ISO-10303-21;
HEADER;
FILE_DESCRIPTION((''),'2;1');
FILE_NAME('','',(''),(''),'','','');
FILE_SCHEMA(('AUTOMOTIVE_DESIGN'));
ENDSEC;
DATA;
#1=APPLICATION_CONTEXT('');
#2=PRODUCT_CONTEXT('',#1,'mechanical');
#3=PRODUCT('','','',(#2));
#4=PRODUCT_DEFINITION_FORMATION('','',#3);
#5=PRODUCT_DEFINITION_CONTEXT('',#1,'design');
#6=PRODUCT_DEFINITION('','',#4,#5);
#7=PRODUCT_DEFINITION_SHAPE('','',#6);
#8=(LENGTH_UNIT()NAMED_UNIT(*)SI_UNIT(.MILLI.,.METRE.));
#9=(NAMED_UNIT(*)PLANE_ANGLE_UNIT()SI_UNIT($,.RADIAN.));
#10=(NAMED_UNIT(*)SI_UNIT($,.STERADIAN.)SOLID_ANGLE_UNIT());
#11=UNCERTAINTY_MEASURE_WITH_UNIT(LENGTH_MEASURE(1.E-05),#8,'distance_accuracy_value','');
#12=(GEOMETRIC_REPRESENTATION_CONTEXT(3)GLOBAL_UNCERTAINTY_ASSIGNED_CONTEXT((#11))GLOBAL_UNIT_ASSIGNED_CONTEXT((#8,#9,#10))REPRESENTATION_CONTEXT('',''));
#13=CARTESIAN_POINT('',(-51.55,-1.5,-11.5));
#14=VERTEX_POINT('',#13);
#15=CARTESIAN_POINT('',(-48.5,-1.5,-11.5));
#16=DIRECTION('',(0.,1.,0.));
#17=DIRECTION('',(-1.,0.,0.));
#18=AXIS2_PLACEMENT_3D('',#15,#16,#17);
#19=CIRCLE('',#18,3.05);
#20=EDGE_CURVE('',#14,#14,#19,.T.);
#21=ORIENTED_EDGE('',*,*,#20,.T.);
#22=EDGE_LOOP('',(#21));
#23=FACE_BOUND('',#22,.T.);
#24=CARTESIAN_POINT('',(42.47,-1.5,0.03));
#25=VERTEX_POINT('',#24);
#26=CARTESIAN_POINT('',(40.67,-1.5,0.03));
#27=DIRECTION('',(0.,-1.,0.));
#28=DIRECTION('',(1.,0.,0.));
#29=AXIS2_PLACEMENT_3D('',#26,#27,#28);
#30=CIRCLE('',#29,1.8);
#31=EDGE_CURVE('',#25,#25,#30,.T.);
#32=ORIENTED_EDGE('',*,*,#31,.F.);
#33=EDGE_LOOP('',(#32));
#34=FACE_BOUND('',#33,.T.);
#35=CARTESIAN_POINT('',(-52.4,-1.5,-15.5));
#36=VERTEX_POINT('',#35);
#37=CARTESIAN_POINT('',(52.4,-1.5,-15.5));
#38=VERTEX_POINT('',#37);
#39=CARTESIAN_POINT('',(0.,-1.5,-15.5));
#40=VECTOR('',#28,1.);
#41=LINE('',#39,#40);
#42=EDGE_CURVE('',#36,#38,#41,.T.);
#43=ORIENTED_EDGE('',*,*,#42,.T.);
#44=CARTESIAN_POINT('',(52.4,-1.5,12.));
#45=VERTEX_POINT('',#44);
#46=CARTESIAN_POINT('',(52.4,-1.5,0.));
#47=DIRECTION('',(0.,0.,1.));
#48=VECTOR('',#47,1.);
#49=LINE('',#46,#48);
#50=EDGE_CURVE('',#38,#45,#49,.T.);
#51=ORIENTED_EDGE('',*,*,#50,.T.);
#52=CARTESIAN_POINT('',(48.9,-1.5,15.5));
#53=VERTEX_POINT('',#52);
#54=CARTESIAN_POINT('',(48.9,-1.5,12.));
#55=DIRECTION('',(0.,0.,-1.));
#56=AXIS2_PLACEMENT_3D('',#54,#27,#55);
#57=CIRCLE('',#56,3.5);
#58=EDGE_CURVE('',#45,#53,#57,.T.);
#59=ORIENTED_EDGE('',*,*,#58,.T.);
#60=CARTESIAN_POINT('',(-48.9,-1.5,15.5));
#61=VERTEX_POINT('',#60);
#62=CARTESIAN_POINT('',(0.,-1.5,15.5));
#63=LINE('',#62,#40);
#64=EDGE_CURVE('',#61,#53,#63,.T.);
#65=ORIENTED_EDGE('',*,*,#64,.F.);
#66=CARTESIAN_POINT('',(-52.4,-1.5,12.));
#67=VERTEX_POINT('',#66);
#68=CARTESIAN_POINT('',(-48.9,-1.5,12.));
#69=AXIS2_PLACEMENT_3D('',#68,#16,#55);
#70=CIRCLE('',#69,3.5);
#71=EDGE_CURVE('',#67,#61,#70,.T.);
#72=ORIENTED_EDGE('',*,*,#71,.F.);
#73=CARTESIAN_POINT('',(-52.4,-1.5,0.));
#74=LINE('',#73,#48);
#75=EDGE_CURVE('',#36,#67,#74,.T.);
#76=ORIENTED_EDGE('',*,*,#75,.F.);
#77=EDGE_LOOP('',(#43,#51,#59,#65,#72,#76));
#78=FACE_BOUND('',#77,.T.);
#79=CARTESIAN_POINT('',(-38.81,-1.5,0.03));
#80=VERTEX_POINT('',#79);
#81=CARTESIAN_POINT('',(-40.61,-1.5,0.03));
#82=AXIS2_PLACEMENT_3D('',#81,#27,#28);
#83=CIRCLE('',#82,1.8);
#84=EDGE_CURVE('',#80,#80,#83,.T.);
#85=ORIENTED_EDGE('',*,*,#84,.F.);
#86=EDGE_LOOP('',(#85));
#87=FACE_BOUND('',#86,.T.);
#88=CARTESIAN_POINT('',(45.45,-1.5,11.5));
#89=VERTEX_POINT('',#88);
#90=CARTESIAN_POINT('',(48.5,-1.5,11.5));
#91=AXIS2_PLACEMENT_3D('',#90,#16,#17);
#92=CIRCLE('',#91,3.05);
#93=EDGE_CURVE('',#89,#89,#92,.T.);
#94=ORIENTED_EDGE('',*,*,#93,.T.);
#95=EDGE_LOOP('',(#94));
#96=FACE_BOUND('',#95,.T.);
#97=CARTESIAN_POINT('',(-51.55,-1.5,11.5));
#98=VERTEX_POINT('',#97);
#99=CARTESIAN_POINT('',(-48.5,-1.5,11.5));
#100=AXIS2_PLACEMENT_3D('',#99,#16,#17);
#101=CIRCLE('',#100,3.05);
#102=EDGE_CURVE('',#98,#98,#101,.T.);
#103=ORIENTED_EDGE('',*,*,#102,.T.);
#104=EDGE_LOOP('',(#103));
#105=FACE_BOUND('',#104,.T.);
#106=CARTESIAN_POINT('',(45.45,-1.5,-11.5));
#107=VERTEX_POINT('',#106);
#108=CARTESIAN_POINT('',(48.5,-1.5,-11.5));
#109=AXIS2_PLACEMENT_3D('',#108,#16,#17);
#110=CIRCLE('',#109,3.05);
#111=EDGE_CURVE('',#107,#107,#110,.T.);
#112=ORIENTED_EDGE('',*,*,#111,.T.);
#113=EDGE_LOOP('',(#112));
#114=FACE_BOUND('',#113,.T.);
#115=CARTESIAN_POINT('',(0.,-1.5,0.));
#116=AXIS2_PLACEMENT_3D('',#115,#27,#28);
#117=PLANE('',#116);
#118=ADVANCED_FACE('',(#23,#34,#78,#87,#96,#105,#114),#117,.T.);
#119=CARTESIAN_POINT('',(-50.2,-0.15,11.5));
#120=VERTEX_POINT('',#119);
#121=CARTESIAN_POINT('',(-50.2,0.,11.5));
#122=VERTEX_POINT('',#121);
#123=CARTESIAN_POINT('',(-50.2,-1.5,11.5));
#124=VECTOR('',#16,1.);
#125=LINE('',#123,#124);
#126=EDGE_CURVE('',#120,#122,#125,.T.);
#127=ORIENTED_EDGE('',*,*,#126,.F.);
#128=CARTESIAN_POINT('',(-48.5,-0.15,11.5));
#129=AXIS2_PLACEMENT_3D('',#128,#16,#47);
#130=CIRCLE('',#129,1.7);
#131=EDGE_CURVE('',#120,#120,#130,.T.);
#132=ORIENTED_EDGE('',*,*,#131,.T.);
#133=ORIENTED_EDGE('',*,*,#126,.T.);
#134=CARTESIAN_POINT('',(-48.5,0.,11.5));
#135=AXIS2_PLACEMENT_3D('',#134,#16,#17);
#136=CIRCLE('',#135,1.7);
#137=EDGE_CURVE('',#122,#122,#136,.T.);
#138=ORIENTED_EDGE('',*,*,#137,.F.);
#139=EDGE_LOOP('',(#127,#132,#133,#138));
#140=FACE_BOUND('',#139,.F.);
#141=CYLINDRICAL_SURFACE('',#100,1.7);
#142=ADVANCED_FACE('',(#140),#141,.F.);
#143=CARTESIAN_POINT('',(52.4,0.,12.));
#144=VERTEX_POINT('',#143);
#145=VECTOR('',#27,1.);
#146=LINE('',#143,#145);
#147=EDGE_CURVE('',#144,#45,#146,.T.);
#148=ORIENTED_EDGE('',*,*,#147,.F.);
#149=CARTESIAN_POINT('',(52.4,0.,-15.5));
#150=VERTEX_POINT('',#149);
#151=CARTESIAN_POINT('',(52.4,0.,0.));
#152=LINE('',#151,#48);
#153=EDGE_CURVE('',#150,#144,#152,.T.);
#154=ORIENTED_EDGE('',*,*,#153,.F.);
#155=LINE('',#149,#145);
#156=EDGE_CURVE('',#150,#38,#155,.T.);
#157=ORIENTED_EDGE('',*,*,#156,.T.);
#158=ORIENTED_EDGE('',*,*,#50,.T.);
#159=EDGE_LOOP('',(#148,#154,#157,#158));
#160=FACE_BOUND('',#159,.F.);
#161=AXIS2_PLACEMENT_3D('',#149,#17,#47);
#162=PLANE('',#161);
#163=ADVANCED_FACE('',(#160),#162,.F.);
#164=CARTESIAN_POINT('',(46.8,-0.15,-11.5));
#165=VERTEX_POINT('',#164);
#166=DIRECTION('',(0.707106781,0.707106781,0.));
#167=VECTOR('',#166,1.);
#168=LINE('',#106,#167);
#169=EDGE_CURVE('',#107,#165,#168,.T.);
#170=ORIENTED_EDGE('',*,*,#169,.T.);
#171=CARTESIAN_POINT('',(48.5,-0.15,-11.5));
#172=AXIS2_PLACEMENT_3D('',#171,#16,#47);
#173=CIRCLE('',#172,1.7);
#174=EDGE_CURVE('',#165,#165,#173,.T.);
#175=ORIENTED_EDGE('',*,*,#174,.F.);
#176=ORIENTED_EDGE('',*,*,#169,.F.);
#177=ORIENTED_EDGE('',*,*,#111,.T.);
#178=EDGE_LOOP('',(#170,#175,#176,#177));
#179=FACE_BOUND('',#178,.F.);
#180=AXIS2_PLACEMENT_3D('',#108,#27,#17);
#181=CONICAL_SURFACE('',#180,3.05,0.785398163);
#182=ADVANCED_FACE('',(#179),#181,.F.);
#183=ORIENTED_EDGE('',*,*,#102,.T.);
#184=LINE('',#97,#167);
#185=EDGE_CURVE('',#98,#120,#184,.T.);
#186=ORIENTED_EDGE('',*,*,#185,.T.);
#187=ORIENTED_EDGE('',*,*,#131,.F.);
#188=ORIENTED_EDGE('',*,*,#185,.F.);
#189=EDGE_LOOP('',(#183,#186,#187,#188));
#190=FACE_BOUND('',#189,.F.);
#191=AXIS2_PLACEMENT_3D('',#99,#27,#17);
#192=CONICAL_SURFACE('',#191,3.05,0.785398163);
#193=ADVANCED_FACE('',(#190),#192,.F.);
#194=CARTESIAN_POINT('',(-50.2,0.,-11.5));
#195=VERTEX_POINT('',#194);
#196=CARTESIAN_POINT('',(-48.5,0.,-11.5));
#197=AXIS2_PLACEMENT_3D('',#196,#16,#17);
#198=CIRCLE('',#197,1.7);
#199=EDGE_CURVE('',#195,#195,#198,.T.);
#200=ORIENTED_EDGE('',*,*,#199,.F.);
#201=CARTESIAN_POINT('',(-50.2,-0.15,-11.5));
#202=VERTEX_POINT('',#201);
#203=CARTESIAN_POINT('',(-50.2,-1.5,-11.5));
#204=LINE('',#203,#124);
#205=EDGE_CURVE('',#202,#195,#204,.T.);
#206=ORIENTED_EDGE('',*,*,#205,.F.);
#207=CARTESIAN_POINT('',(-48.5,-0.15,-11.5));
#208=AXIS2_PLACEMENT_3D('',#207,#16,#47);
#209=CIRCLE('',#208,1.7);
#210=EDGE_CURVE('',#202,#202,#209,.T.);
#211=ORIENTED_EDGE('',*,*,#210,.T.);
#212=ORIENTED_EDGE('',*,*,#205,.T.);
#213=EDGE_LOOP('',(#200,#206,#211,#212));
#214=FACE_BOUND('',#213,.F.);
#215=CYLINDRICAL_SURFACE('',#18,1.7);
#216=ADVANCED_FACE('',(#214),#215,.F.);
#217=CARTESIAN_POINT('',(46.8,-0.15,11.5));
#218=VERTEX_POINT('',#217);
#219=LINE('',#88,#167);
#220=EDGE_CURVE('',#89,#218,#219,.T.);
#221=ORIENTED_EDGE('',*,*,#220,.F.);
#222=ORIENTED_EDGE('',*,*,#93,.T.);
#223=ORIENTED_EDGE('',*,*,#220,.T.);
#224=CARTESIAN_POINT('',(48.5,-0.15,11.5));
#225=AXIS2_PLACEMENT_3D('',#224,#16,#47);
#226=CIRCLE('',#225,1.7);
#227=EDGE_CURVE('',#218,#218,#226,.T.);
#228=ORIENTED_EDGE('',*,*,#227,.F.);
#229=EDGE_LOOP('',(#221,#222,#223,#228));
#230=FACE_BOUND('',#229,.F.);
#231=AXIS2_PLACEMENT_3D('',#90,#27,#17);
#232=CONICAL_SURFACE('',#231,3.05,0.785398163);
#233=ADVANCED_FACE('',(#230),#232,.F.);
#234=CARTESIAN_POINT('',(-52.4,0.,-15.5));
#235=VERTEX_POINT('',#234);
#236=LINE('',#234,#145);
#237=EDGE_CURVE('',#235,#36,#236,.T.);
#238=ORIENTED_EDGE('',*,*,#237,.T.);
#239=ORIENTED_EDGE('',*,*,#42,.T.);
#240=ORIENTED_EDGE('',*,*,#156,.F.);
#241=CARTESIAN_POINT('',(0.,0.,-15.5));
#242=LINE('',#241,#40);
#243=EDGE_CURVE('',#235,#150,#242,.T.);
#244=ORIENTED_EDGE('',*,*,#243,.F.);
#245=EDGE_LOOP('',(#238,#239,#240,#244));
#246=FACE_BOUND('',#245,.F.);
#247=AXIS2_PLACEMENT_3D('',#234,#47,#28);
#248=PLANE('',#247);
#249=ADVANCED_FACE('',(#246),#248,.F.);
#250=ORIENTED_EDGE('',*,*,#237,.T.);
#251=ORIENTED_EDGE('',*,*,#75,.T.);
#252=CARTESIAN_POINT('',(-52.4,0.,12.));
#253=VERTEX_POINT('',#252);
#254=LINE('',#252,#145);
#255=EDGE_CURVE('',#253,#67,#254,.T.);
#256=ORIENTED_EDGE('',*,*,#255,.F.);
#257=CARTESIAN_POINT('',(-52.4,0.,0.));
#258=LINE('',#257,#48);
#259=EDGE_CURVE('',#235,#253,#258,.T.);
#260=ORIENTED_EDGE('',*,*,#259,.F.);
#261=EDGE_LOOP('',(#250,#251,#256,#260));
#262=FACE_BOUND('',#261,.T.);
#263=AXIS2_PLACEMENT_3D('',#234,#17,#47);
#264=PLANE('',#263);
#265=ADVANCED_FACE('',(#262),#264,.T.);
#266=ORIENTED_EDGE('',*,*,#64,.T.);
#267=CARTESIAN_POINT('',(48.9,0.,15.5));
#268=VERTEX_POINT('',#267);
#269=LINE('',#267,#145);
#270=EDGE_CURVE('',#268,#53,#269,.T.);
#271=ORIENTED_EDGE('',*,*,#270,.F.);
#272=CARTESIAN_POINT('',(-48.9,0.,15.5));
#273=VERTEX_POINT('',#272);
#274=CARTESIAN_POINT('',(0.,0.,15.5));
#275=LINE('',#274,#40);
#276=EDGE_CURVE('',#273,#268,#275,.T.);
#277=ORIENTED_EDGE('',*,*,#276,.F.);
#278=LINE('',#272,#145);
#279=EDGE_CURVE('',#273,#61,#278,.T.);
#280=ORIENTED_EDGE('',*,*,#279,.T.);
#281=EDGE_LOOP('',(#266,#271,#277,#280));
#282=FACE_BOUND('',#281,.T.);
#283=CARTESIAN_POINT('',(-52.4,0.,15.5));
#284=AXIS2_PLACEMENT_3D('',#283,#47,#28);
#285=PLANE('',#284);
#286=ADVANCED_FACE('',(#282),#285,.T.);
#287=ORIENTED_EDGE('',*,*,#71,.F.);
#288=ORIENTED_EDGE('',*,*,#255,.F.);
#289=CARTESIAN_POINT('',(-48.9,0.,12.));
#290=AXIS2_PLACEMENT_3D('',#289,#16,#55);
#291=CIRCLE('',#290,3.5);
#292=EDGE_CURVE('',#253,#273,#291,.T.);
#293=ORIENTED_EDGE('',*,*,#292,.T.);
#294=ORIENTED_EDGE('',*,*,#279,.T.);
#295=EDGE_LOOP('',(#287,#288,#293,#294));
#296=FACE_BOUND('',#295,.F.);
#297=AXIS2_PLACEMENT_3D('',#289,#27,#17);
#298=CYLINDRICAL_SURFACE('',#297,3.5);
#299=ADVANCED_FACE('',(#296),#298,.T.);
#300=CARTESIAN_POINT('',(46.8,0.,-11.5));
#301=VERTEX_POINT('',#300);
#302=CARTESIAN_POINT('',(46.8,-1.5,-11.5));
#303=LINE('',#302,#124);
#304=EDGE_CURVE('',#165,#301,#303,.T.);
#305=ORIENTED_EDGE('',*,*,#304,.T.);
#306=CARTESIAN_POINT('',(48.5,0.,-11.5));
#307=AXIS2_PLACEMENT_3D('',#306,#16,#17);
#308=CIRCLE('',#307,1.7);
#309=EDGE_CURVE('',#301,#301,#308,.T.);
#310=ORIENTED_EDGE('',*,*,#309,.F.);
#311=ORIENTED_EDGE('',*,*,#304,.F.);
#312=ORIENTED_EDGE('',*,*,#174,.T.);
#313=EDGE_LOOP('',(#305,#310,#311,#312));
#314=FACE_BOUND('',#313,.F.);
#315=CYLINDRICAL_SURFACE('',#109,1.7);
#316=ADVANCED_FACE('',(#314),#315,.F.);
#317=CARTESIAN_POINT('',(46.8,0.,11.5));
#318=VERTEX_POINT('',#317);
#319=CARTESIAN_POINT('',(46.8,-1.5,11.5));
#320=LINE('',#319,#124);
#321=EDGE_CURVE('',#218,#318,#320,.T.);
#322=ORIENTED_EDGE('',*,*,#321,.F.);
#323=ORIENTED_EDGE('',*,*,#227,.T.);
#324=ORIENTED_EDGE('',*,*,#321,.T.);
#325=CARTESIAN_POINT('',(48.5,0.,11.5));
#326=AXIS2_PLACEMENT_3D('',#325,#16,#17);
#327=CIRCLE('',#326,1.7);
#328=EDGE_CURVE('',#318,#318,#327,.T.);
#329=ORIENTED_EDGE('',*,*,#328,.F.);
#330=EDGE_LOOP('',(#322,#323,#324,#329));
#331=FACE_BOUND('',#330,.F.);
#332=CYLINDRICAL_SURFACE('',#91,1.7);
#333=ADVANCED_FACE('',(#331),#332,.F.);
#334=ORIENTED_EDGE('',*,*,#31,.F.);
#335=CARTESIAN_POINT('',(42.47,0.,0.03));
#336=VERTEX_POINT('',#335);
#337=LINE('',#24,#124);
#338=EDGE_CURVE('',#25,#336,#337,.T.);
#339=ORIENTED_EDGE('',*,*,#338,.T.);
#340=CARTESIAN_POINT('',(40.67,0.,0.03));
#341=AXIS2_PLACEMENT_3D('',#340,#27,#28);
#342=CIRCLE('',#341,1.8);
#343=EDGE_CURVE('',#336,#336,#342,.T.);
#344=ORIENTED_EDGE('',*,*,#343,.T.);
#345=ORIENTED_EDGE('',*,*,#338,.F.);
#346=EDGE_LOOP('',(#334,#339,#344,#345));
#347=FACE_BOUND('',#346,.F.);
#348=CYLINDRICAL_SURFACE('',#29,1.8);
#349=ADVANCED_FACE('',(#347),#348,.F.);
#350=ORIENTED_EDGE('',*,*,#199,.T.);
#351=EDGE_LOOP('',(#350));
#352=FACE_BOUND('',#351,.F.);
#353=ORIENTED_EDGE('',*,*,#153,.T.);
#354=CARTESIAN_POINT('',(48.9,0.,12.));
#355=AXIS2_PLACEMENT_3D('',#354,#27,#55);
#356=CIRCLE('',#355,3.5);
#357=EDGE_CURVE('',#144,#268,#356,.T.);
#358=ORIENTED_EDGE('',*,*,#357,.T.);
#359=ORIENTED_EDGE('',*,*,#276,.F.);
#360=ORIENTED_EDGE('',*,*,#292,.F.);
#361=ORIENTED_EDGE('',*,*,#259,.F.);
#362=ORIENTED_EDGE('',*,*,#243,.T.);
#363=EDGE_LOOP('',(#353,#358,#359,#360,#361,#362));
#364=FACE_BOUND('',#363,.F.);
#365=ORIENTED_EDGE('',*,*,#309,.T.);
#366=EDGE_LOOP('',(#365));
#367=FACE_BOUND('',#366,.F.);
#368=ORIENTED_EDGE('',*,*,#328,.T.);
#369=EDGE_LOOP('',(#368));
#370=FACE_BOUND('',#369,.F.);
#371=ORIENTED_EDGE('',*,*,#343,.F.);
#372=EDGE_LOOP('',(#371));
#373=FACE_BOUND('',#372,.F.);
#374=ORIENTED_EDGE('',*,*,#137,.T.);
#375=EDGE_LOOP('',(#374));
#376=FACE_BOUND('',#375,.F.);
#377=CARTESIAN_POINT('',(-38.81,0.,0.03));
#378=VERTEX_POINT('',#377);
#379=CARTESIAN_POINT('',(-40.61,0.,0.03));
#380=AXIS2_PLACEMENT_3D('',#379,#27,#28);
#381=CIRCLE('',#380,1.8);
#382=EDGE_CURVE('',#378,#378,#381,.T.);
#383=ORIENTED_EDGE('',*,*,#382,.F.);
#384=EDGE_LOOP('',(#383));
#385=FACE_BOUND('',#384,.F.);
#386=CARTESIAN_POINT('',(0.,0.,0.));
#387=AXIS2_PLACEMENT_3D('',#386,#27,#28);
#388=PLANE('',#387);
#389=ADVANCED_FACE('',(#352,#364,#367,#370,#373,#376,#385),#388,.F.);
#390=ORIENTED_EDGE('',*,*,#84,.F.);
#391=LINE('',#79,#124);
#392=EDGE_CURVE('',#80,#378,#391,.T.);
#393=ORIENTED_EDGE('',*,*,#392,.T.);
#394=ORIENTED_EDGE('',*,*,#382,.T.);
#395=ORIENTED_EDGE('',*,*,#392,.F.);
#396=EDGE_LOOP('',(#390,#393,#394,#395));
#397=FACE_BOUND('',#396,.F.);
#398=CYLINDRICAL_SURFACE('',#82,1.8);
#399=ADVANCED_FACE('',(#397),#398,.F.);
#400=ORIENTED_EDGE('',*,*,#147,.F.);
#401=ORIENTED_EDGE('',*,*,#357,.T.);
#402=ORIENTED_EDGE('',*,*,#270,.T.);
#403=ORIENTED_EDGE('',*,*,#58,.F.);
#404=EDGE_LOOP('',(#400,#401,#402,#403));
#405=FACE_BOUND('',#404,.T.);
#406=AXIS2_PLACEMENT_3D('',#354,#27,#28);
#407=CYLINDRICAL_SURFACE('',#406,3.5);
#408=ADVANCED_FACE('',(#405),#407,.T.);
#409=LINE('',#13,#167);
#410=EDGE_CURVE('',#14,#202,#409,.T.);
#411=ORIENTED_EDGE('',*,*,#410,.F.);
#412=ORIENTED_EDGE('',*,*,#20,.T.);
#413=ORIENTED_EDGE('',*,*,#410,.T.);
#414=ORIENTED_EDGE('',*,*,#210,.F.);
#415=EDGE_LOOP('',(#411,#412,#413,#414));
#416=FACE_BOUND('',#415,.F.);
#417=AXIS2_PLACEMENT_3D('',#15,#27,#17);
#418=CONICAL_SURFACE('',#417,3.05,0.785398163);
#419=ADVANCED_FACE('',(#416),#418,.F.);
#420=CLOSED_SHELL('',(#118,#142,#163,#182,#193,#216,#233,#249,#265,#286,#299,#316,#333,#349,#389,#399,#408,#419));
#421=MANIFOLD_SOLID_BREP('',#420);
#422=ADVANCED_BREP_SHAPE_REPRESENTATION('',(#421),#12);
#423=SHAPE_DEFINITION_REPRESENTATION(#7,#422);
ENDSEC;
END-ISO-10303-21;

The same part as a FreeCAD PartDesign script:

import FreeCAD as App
import Part
import Sketcher
from FreeCAD import Vector
Q = App.Units.Quantity


def edges_at(feature, points):
    """Names of the edges that pass closest to the given points."""
    edges = feature.Shape.Edges
    near = lambda p: min(range(len(edges)), key=lambda i: edges[i].distToShape(Part.Vertex(*p))[0])
    return sorted({f"Edge{near(p) + 1}" for p in points})


def add_polygon(sketch, points):
    """Adds a closed chain of lines whose ends are joined by coincident constraints."""
    first, n = sketch.GeometryCount, len(points)
    for a, b in zip(points, points[1:] + points[:1]):
        sketch.addGeometry(Part.LineSegment(App.Vector(*a, 0), App.Vector(*b, 0)), False)
    for i in range(n):
        sketch.addConstraint(Sketcher.Constraint("Coincident", first + i, 2, first + (i + 1) % n, 1))

doc = App.newDocument("Part")
body = doc.addObject("PartDesign::Body", "Body")

sketch1 = doc.addObject("Sketcher::SketchObject", "Sketch")
body.addObject(sketch1)
sketch1.AttachmentSupport = (doc.XZ_Plane, [""])
sketch1.MapMode = "FlatFace"
add_polygon(sketch1, [(-52, 16), (-52, -16), (52, -16), (52, 16)])
sketch1.addConstraint(Sketcher.Constraint("Vertical", 0))
sketch1.addConstraint(Sketcher.Constraint("Horizontal", 1))
sketch1.addConstraint(Sketcher.Constraint("Vertical", 2))
sketch1.addConstraint(Sketcher.Constraint("Horizontal", 3))
sketch1.addConstraint(Sketcher.Constraint("Symmetric", 0, 2, 2, 2, -1, 1))
sketch1.addConstraint(Sketcher.Constraint("DistanceY", 0, 2, 0, 1, Q("31 mm")))
sketch1.addConstraint(Sketcher.Constraint("DistanceX", 1, 1, 1, 2, Q("104.8 mm")))
pad1 = doc.addObject("PartDesign::Pad", "Pad")
body.addObject(pad1)
pad1.Profile = sketch1
pad1.Length = 1.5

sketch2 = doc.addObject("Sketcher::SketchObject", "Sketch001")
body.addObject(sketch2)
sketch2.AttachmentSupport = (doc.XZ_Plane, [""])
sketch2.MapMode = "FlatFace"
sketch2.AttachmentOffset = App.Placement(Vector(0, 0, 1.5), App.Rotation())
sketch2.addGeometry(Part.Circle(Vector(-48.5, 11.5, 0), Vector(0, 0, 1), 1.7), False)
sketch2.addGeometry(Part.Circle(Vector(-48.5, -11.5, 0), Vector(0, 0, 1), 1.7), False)
sketch2.addGeometry(Part.Circle(Vector(48.5, -11.5, 0), Vector(0, 0, 1), 1.7), False)
sketch2.addGeometry(Part.Circle(Vector(48.5, 11.5, 0), Vector(0, 0, 1), 1.7), False)
sketch2.addConstraint(Sketcher.Constraint("Equal", 0, 1))
sketch2.addConstraint(Sketcher.Constraint("Equal", 1, 2))
sketch2.addConstraint(Sketcher.Constraint("Equal", 2, 3))
sketch2.addConstraint(Sketcher.Constraint("Symmetric", 0, 3, 2, 3, -1, 1))
sketch2.addConstraint(Sketcher.Constraint("Symmetric", 1, 3, 3, 3, -1, 1))
sketch2.addConstraint(Sketcher.Constraint("Symmetric", 1, 3, 2, 3, -2))
sketch2.addConstraint(Sketcher.Constraint("Diameter", 0, Q("3.4 mm")))
sketch2.addConstraint(Sketcher.Constraint("DistanceY", 1, 3, 0, 3, Q("23 mm")))
sketch2.addConstraint(Sketcher.Constraint("DistanceX", 1, 3, 2, 3, Q("97 mm")))
doc.recompute()
hole = doc.addObject("PartDesign::Hole", "Hole")
body.addObject(hole)
hole.Profile = sketch2
hole.ThreadType = "None"
hole.Diameter = 3.4
hole.DepthType = "Dimension"
hole.Depth = 25
hole.DrillPoint = "Flat"
hole.HoleCutType = "Countersink"
hole.HoleCutDiameter = 6.1
hole.HoleCutCountersinkAngle = 90
doc.recompute()

fillet = doc.addObject("PartDesign::Fillet", "Fillet")
body.addObject(fillet)
fillet.Base = (hole, edges_at(hole, [(-52.4, -0.75, 15.5), (52.4, -0.75, 15.5)]))
fillet.Radius = 3.5

sketch3 = doc.addObject("Sketcher::SketchObject", "Sketch002")
body.addObject(sketch3)
sketch3.AttachmentSupport = (doc.XZ_Plane, [""])
sketch3.MapMode = "FlatFace"
sketch3.AttachmentOffset = App.Placement(Vector(0, 0, 1.5), App.Rotation())
sketch3.addGeometry(Part.Circle(Vector(-40.6, 0, 0), Vector(0, 0, 1), 1.8), False)
sketch3.addConstraint(Sketcher.Constraint("Diameter", 0, Q("3.6 mm")))
sketch3.addConstraint(Sketcher.Constraint("DistanceX", 0, 3, -1, 1, Q("40.61 mm")))
sketch3.addConstraint(Sketcher.Constraint("DistanceY", -1, 1, 0, 3, Q("0.03 mm")))
pocket1 = doc.addObject("PartDesign::Pocket", "Pocket")
body.addObject(pocket1)
pocket1.Profile = sketch3
pocket1.Type = "ThroughAll"
doc.recompute()

linearpattern = doc.addObject("PartDesign::LinearPattern", "LinearPattern")
body.addObject(linearpattern)
linearpattern.Originals = [pocket1]
linearpattern.Direction = (doc.X_Axis, [""])
linearpattern.Mode = "offset"
linearpattern.Offset = 81.28
linearpattern.Occurrences = 2
body.Tip = linearpattern

doc.recompute()
